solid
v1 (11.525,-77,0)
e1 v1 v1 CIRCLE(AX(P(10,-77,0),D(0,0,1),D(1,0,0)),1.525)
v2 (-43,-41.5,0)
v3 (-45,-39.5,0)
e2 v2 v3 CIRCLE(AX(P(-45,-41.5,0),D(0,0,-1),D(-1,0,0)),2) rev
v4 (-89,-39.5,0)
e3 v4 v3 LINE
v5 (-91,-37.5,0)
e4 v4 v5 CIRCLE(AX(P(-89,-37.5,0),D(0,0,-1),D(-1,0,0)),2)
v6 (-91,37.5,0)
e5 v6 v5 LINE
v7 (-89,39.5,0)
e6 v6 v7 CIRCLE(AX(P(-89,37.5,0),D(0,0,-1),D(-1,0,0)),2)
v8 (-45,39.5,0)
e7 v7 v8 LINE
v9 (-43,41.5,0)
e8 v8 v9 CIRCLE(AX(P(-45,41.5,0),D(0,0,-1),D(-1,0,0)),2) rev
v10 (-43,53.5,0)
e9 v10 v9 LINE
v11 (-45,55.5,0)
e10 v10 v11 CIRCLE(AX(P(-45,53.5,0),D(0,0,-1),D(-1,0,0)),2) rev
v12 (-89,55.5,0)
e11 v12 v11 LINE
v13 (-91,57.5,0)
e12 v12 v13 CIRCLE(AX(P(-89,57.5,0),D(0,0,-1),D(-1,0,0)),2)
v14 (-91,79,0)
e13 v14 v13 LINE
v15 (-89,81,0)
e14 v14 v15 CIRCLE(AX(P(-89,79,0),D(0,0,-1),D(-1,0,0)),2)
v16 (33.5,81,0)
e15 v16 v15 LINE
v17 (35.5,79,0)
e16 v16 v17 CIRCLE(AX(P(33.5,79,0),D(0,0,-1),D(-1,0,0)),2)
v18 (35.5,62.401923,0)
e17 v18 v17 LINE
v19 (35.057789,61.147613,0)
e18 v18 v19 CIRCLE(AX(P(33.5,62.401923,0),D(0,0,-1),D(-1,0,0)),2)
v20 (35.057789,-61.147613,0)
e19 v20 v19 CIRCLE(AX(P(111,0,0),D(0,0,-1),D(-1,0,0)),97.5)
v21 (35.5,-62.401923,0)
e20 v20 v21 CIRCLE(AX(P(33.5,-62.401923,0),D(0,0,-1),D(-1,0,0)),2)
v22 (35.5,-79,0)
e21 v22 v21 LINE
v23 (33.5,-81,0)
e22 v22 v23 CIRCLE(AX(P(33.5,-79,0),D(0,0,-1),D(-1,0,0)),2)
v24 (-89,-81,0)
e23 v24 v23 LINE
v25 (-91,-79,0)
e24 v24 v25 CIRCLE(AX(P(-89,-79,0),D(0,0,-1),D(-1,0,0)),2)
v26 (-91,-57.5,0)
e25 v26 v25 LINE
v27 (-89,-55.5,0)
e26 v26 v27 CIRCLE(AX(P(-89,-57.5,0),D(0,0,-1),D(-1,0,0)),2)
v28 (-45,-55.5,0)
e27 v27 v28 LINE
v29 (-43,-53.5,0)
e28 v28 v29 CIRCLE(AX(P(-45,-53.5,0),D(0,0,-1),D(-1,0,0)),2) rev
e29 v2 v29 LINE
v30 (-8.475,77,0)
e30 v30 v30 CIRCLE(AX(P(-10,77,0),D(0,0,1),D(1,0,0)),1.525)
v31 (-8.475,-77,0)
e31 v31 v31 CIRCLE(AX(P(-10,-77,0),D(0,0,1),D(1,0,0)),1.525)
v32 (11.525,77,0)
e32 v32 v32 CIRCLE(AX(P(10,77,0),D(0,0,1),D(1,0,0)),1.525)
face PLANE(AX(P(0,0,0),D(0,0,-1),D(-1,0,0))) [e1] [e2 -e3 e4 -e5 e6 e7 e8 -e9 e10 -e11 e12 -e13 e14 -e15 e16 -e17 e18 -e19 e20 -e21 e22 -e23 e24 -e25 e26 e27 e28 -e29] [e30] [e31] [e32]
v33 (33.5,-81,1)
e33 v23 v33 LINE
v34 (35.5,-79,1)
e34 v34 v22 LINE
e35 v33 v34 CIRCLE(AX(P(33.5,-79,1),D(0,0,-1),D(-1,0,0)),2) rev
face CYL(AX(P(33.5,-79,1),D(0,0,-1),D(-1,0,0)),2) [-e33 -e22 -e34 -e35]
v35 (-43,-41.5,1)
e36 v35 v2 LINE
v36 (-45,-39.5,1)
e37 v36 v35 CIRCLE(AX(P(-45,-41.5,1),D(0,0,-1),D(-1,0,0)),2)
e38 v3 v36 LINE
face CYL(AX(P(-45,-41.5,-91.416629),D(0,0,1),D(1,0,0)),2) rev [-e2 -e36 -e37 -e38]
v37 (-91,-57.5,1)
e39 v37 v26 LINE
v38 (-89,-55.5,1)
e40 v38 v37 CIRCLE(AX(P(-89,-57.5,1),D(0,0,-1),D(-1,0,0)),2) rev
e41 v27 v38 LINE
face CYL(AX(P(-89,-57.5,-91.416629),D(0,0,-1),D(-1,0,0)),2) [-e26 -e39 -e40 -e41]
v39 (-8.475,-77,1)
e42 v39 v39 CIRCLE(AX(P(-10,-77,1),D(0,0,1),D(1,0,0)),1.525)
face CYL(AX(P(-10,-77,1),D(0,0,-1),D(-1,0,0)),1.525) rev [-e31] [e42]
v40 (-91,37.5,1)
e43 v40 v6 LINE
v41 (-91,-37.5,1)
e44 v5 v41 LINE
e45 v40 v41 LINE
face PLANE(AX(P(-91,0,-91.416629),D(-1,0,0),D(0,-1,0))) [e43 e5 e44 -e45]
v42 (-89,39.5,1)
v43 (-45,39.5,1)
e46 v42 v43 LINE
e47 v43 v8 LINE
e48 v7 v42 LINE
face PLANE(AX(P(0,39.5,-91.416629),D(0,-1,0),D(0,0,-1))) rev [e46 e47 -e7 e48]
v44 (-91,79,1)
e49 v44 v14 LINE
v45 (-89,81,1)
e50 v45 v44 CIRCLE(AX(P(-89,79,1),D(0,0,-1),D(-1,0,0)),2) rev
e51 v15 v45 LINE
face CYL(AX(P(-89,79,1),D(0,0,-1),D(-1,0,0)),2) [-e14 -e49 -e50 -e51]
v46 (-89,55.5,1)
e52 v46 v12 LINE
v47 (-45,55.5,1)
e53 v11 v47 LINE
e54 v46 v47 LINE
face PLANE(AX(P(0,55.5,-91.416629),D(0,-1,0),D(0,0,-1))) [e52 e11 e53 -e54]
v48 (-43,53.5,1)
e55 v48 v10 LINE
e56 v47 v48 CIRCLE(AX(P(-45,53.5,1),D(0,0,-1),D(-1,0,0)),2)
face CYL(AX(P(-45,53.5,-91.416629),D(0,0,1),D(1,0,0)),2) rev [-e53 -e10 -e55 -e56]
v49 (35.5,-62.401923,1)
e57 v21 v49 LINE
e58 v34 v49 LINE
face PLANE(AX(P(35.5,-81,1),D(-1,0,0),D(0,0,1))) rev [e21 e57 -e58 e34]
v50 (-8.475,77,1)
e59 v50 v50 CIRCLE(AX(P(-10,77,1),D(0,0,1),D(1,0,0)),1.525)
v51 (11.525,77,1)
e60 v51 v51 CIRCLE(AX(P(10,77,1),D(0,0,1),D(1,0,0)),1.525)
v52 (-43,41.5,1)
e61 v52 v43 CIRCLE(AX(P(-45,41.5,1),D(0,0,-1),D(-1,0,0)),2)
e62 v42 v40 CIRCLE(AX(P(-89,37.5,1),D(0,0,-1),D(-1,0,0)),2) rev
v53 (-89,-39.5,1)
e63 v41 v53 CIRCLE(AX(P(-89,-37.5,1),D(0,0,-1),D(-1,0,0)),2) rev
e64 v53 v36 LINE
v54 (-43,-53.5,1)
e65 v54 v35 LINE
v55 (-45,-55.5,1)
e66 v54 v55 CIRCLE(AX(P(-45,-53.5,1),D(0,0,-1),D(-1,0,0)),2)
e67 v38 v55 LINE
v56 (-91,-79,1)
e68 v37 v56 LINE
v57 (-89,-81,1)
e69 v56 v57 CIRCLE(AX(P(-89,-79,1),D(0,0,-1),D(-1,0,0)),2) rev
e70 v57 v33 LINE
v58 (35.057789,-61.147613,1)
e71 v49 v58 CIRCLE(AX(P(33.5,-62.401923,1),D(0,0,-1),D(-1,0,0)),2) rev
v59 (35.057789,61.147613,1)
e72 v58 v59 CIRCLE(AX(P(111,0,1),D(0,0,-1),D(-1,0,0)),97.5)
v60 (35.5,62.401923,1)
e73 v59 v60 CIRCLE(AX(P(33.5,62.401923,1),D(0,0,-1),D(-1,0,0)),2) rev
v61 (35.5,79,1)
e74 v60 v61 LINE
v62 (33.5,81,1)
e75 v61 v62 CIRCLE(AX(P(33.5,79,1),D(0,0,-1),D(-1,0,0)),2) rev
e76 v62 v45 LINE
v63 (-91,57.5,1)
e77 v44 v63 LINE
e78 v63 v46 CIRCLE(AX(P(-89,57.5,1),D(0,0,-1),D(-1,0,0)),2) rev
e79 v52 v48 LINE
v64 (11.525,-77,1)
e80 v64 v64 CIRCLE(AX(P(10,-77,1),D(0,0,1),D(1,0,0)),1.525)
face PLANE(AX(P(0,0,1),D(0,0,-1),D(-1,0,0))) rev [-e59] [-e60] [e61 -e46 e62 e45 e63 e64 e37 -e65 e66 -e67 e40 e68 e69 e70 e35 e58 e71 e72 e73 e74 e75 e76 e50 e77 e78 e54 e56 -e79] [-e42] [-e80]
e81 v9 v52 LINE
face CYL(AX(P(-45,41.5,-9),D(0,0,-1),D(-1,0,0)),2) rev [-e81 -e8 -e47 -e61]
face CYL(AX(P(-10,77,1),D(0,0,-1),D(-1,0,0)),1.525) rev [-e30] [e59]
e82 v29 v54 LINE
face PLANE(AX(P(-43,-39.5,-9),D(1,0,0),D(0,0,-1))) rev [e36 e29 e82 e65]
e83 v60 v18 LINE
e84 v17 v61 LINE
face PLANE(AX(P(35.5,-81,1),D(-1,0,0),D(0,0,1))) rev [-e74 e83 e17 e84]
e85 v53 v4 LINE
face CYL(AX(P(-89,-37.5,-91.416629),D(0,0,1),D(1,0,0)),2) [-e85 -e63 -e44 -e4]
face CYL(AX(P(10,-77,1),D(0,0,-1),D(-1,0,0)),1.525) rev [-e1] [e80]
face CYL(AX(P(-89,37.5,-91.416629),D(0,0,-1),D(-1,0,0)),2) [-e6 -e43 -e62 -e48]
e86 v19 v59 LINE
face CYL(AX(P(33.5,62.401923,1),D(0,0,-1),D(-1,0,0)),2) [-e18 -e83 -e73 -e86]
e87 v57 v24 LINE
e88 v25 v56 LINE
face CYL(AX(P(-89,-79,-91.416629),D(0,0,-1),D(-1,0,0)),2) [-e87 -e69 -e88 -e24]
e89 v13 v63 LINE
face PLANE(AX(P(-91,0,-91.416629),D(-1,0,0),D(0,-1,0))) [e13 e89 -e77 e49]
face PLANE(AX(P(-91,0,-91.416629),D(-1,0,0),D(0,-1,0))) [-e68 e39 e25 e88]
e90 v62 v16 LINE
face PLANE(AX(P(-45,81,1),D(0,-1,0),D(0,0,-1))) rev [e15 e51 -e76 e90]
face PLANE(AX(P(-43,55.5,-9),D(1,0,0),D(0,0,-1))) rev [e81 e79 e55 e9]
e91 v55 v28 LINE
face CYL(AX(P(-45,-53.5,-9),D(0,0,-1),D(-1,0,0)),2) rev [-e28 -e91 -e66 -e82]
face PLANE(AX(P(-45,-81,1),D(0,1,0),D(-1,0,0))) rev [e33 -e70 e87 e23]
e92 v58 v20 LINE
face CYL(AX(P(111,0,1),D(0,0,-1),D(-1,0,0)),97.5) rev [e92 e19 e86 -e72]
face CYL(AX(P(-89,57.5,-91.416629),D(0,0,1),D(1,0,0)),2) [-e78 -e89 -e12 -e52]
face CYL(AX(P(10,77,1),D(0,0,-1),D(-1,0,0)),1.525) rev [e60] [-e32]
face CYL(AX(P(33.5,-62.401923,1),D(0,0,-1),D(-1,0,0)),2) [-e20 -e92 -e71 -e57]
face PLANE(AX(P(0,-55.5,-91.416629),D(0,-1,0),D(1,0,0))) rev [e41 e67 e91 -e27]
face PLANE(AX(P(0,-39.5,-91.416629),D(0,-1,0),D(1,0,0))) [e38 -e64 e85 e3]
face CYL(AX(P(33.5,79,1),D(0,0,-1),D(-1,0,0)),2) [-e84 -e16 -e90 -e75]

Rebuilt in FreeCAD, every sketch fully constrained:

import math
import FreeCAD as App
import Part
import Sketcher

V = App.Vector


def edges_at(feature, points):
    """Names of the edges that pass closest to the given points."""
    edges = feature.Shape.Edges
    near = lambda p: min(range(len(edges)), key=lambda i: edges[i].distToShape(Part.Vertex(*p))[0])
    return sorted({f"Edge{near(p) + 1}" for p in points})

doc = App.newDocument("Part")
body = doc.addObject("PartDesign::Body", "Body")

sketch1 = body.newObject("Sketcher::SketchObject", "Sketch")
sketch1.AttachmentSupport = (doc.getObject("XY_Plane"), [""])
sketch1.MapMode = "FlatFace"
sketch1.addGeometry([
    Part.LineSegment(V(-45, 81, 0), V(-45, -81, 0)),
    Part.LineSegment(V(-45, -81, 0), V(35.5, -81, 0)),
    Part.LineSegment(V(35.5, -81, 0), V(35.5, 81, 0)),
    Part.LineSegment(V(35.5, 81, 0), V(-45, 81, 0)),
    Part.Circle(V(-10, -77, 0), V(0, 0, 1), 1.525),
    Part.Circle(V(10, -77, 0), V(0, 0, 1), 1.525),
    Part.Circle(V(-10, 77, 0), V(0, 0, 1), 1.525),
    Part.Circle(V(10, 77, 0), V(0, 0, 1), 1.525),
], False)
sketch1.addConstraint([
    Sketcher.Constraint("Coincident", 0, 2, 1, 1),
    Sketcher.Constraint("Coincident", 1, 2, 2, 1),
    Sketcher.Constraint("Coincident", 2, 2, 3, 1),
    Sketcher.Constraint("Coincident", 3, 2, 0, 1),
    Sketcher.Constraint("Vertical", 0),
    Sketcher.Constraint("Horizontal", 1),
    Sketcher.Constraint("Vertical", 2),
    Sketcher.Constraint("Horizontal", 3),
    Sketcher.Constraint("Equal", 4, 5),
    Sketcher.Constraint("Equal", 5, 6),
    Sketcher.Constraint("Equal", 6, 7),
    Sketcher.Constraint("Symmetric", 5, 3, 6, 3, -1, 1),
    Sketcher.Constraint("Symmetric", 4, 3, 7, 3, -1, 1),
    Sketcher.Constraint("Symmetric", 4, 3, 5, 3, -2),
    Sketcher.Constraint("Diameter", 4, 3.05),
    Sketcher.Constraint("DistanceY", 0, 2, 0, 1, 162.0),
    Sketcher.Constraint("DistanceX", 1, 1, 1, 2, 80.5),
    Sketcher.Constraint("DistanceX", 4, 3, -1, 1, 10.0),
    Sketcher.Constraint("DistanceY", 4, 3, -1, 1, 77.0),
    Sketcher.Constraint("DistanceX", 0, 2, -1, 1, 45.0),
    Sketcher.Constraint("DistanceY", 0, 2, -1, 1, 81.0),
])
pad1 = body.newObject("PartDesign::Pad", "Pad")
pad1.Profile = sketch1
pad1.Length = 1

sketch2 = body.newObject("Sketcher::SketchObject", "Sketch001")
sketch2.AttachmentSupport = (doc.getObject("XY_Plane"), [""])
sketch2.MapMode = "FlatFace"
sketch2.addGeometry(Part.Circle(V(111, 0, 0), V(0, 0, 1), 97.5), False)
sketch2.addConstraint([
    Sketcher.Constraint("PointOnObject", 0, 3, -1),
    Sketcher.Constraint("Diameter", 0, 195.0),
    Sketcher.Constraint("DistanceX", -1, 1, 0, 3, 111.0),
])
pocket1 = body.newObject("PartDesign::Pocket", "Pocket")
pocket1.Profile = sketch2
pocket1.Length = 1
pocket1.Reversed = True
doc.recompute()

fillet = body.newObject("PartDesign::Fillet", "Fillet")
fillet.Base = (pocket1, edges_at(pocket1, [
    (35.5, -61.693, 0.5),
    (35.5, 61.693, 0.5),
    (35.5, -81, 0.5),
    (-45, -81, 0.5),
    (-45, 81, 0.5),
    (35.5, 81, 0.5),
]))
fillet.Radius = 2

sketch3 = body.newObject("Sketcher::SketchObject", "Sketch002")
sketch3.AttachmentSupport = (doc.getObject("XY_Plane"), [""])
sketch3.MapMode = "FlatFace"
sketch3.AttachmentOffset = App.Placement(V(0, 0, 1), App.Rotation())
sketch3.addGeometry([
    Part.LineSegment(V(-91, 81, 0), V(-91, 55.5, 0)),
    Part.LineSegment(V(-91, 55.5, 0), V(-45, 55.5, 0)),
    Part.LineSegment(V(-45, 55.5, 0), V(-45, 39.5, 0)),
    Part.LineSegment(V(-45, 39.5, 0), V(-91, 39.5, 0)),
    Part.LineSegment(V(-91, 39.5, 0), V(-91, -39.5, 0)),
    Part.LineSegment(V(-91, -39.5, 0), V(-45, -39.5, 0)),
    Part.LineSegment(V(-45, -39.5, 0), V(-45, -55.5, 0)),
    Part.LineSegment(V(-45, -55.5, 0), V(-91, -55.5, 0)),
    Part.LineSegment(V(-91, -55.5, 0), V(-91, -81, 0)),
    Part.LineSegment(V(-91, -81, 0), V(-43, -81, 0)),
    Part.LineSegment(V(-43, -81, 0), V(-43, 81, 0)),
    Part.LineSegment(V(-43, 81, 0), V(-91, 81, 0)),
], False)
sketch3.addConstraint([
    Sketcher.Constraint("Coincident", 0, 2, 1, 1),
    Sketcher.Constraint("Coincident", 1, 2, 2, 1),
    Sketcher.Constraint("Coincident", 2, 2, 3, 1),
    Sketcher.Constraint("Coincident", 3, 2, 4, 1),
    Sketcher.Constraint("Coincident", 4, 2, 5, 1),
    Sketcher.Constraint("Coincident", 5, 2, 6, 1),
    Sketcher.Constraint("Coincident", 6, 2, 7, 1),
    Sketcher.Constraint("Coincident", 7, 2, 8, 1),
    Sketcher.Constraint("Coincident", 8, 2, 9, 1),
    Sketcher.Constraint("Coincident", 9, 2, 10, 1),
    Sketcher.Constraint("Coincident", 10, 2, 11, 1),
    Sketcher.Constraint("Coincident", 11, 2, 0, 1),
    Sketcher.Constraint("Vertical", 0),
    Sketcher.Constraint("Horizontal", 1),
    Sketcher.Constraint("Vertical", 2),
    Sketcher.Constraint("Horizontal", 3),
    Sketcher.Constraint("Vertical", 4),
    Sketcher.Constraint("Horizontal", 5),
    Sketcher.Constraint("Vertical", 6),
    Sketcher.Constraint("Horizontal", 7),
    Sketcher.Constraint("Vertical", 8),
    Sketcher.Constraint("Horizontal", 9),
    Sketcher.Constraint("Vertical", 10),
    Sketcher.Constraint("Horizontal", 11),
    Sketcher.Constraint("Symmetric", 2, 2, 5, 2, -1),
    Sketcher.Constraint("Symmetric", 0, 2, 7, 2, -1),
    Sketcher.Constraint("Vertical", 0, 2, 3, 2),
    Sketcher.Constraint("Equal", 0, 8),
    Sketcher.Constraint("DistanceX", 1, 1, 1, 2, 46.0),
    Sketcher.Constraint("DistanceX", 9, 1, 9, 2, 48.0),
    Sketcher.Constraint("DistanceY", 2, 2, 2, 1, 16.0),
    Sketcher.Constraint("DistanceY", 4, 2, 4, 1, 79.0),
    Sketcher.Constraint("DistanceY", 10, 1, 10, 2, 162.0),
    Sketcher.Constraint("DistanceX", 0, 2, -1, 1, 91.0),
])
pad2 = body.newObject("PartDesign::Pad", "Pad001")
pad2.Profile = sketch3
pad2.Length = 1
pad2.Reversed = True
doc.recompute()

fillet2 = body.newObject("PartDesign::Fillet", "Fillet001")
fillet2.Base = (pad2, edges_at(pad2, [
    (-91, -81, 0.5),
    (-45, -55.5, 0.5),
    (-91, -55.5, 0.5),
    (-91, 55.5, 0.5),
    (-45, 55.5, 0.5),
    (-91, 81, 0.5),
    (-45, -39.5, 0.5),
    (-45, 39.5, 0.5),
    (-91, 39.5, 0.5),
    (-91, -39.5, 0.5),
]))
fillet2.Radius = 2

sketch4 = body.newObject("Sketcher::SketchObject", "Sketch003")
sketch4.AttachmentSupport = (doc.getObject("XY_Plane"), [""])
sketch4.MapMode = "FlatFace"
sketch4.AttachmentOffset = App.Placement(V(0, 0, 1), App.Rotation())
sketch4.addGeometry([
    Part.LineSegment(V(-43, 55.5, 0), V(-47, 55.5, 0)),
    Part.ArcOfCircle(Part.Circle(V(-47, 53.5, 0), V(0, 0, 1), 2), math.radians(0), math.radians(90)),
    Part.LineSegment(V(-45, 53.5, 0), V(-45, 41.5, 0)),
    Part.ArcOfCircle(Part.Circle(V(-47, 41.5, 0), V(0, 0, 1), 2), math.radians(-90), math.radians(0)),
    Part.LineSegment(V(-47, 39.5, 0), V(-43, 39.5, 0)),
    Part.LineSegment(V(-43, 39.5, 0), V(-43, 55.5, 0)),
    Part.LineSegment(V(-43, -39.5, 0), V(-47, -39.5, 0)),
    Part.ArcOfCircle(Part.Circle(V(-47, -41.5, 0), V(0, 0, 1), 2), math.radians(0), math.radians(90)),
    Part.LineSegment(V(-45, -41.5, 0), V(-45, -53.5, 0)),
    Part.ArcOfCircle(Part.Circle(V(-47, -53.5, 0), V(0, 0, 1), 2), math.radians(-90), math.radians(0)),
    Part.LineSegment(V(-47, -55.5, 0), V(-43, -55.5, 0)),
    Part.LineSegment(V(-43, -55.5, 0), V(-43, -39.5, 0)),
], False)
sketch4.addConstraint([
    Sketcher.Constraint("Tangent", 0, 2, 1, 2),
    Sketcher.Constraint("Tangent", 1, 1, 2, 1),
    Sketcher.Constraint("Tangent", 2, 2, 3, 2),
    Sketcher.Constraint("Tangent", 3, 1, 4, 1),
    Sketcher.Constraint("Coincident", 4, 2, 5, 1),
    Sketcher.Constraint("Coincident", 5, 2, 0, 1),
    Sketcher.Constraint("Tangent", 6, 2, 7, 2),
    Sketcher.Constraint("Tangent", 7, 1, 8, 1),
    Sketcher.Constraint("Tangent", 8, 2, 9, 2),
    Sketcher.Constraint("Tangent", 9, 1, 10, 1),
    Sketcher.Constraint("Coincident", 10, 2, 11, 1),
    Sketcher.Constraint("Coincident", 11, 2, 6, 1),
    Sketcher.Constraint("Horizontal", 0),
    Sketcher.Constraint("Vertical", 2),
    Sketcher.Constraint("Horizontal", 4),
    Sketcher.Constraint("Vertical", 5),
    Sketcher.Constraint("Horizontal", 6),
    Sketcher.Constraint("Vertical", 8),
    Sketcher.Constraint("Horizontal", 10),
    Sketcher.Constraint("Vertical", 11),
    Sketcher.Constraint("Equal", 1, 3),
    Sketcher.Constraint("Equal", 3, 7),
    Sketcher.Constraint("Equal", 7, 9),
    Sketcher.Constraint("Symmetric", 3, 3, 7, 3, -1),
    Sketcher.Constraint("Symmetric", 5, 2, 10, 2, -1),
    Sketcher.Constraint("Radius", 1, 2.0),
    Sketcher.Constraint("DistanceX", 0, 2, 0, 1, 4.0),
    Sketcher.Constraint("DistanceY", 2, 2, 2, 1, 12.0),
    Sketcher.Constraint("DistanceX", 1, 3, -1, 1, 47.0),
    Sketcher.Constraint("DistanceY", 7, 3, 3, 3, 83.0),
])
pocket2 = body.newObject("PartDesign::Pocket", "Pocket001")
pocket2.Profile = sketch4
pocket2.Length = 10
doc.recompute()

fillet3 = body.newObject("PartDesign::Fillet", "Fillet002")
fillet3.Base = (pocket2, edges_at(pocket2, [
    (-43, 55.5, 0.5),
    (-43, 39.5, 0.5),
    (-43, -39.5, 0.5),
    (-43, -55.5, 0.5),
]))
fillet3.Radius = 2

doc.recompute()
